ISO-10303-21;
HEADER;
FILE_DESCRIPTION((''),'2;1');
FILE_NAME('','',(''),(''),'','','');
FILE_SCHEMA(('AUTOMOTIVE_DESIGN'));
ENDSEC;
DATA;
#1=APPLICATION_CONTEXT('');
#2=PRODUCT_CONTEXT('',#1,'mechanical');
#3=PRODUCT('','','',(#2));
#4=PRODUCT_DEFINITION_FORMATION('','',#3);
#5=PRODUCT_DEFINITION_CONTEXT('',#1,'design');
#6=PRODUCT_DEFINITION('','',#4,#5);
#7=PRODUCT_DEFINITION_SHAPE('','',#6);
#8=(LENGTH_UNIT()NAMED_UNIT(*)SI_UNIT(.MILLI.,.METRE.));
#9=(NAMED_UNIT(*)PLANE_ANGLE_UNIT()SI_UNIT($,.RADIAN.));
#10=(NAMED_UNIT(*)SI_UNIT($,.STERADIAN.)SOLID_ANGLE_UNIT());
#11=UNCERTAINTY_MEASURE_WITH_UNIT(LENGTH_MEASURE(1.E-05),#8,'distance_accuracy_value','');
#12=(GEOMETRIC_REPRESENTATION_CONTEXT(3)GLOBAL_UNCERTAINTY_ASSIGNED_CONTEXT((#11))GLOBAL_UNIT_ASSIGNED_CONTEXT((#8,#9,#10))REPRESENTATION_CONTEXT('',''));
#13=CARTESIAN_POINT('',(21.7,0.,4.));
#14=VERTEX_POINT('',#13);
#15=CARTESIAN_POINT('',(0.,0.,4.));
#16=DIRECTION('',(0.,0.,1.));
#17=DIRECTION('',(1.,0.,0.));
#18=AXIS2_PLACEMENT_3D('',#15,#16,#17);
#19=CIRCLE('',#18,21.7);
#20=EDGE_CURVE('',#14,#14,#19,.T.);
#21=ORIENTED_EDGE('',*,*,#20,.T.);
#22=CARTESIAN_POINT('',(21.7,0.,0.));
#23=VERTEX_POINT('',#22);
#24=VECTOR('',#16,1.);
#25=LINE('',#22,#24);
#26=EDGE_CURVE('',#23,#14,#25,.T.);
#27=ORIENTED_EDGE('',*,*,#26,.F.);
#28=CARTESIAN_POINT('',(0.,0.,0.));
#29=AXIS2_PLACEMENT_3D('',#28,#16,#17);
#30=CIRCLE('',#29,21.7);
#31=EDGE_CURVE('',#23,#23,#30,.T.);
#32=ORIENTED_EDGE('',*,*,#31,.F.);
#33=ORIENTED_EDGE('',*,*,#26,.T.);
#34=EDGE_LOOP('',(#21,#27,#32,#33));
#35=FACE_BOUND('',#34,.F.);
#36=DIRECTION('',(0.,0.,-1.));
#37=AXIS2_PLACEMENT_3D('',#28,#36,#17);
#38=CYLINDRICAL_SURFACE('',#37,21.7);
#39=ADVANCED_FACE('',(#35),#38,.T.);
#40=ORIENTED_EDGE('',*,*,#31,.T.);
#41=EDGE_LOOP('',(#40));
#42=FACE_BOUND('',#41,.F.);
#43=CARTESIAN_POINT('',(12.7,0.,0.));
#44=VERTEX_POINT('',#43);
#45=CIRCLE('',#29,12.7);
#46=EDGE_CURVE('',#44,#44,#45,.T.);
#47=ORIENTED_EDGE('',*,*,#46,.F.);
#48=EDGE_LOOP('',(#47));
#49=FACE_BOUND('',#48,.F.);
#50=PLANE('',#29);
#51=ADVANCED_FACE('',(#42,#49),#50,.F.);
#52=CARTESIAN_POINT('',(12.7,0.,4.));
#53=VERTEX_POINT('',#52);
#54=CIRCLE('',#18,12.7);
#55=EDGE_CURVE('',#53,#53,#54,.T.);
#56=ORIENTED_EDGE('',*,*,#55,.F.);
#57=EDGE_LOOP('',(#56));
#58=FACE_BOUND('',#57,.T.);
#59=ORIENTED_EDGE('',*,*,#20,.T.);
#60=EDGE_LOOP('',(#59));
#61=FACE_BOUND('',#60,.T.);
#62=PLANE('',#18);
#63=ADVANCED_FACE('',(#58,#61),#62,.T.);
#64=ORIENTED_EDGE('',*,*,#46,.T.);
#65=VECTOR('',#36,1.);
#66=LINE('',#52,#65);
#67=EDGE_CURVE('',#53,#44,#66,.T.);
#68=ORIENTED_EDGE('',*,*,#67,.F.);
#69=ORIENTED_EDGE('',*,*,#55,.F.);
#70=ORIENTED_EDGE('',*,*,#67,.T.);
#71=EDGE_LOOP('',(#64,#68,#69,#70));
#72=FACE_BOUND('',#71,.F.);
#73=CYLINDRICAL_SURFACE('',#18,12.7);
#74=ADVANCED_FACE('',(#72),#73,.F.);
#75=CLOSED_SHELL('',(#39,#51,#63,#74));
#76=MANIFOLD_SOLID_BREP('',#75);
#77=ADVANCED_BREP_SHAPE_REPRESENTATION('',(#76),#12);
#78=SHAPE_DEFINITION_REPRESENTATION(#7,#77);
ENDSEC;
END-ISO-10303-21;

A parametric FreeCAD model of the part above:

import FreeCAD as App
import Part
import Sketcher

doc = App.newDocument("Part")
body = doc.addObject("PartDesign::Body", "Body")

# Sketch on XY plane
sketch1 = body.newObject("Sketcher::SketchObject", "Sketch")
sketch1.AttachmentSupport = (doc.getObject("XY_Plane"), [""])
sketch1.MapMode = "FlatFace"
sketch1.addGeometry(Part.Circle(App.Vector(0, 0, 0), App.Vector(0, 0, 1), 22), False)
sketch1.addConstraint([
    Sketcher.Constraint("Coincident", 0, 3, -1, 1),
    Sketcher.Constraint("Diameter", 0, 43.4),
])
pad1 = body.newObject("PartDesign::Pad", "Pad")
pad1.Profile = sketch1
pad1.Length = 4

# Sketch on XY plane
sketch2 = body.newObject("Sketcher::SketchObject", "Sketch001")
sketch2.AttachmentSupport = (doc.getObject("XY_Plane"), [""])
sketch2.MapMode = "FlatFace"
sketch2.AttachmentOffset = App.Placement(App.Vector(0, 0, 4), App.Rotation())
sketch2.addGeometry(Part.Circle(App.Vector(0, 0, 0), App.Vector(0, 0, 1), 13), False)
sketch2.addConstraint([
    Sketcher.Constraint("Coincident", 0, 3, -1, 1),
    Sketcher.Constraint("Diameter", 0, 25.4),
])
pocket1 = body.newObject("PartDesign::Pocket", "Pocket")
pocket1.Profile = sketch2
pocket1.Length = 4

doc.recompute()
